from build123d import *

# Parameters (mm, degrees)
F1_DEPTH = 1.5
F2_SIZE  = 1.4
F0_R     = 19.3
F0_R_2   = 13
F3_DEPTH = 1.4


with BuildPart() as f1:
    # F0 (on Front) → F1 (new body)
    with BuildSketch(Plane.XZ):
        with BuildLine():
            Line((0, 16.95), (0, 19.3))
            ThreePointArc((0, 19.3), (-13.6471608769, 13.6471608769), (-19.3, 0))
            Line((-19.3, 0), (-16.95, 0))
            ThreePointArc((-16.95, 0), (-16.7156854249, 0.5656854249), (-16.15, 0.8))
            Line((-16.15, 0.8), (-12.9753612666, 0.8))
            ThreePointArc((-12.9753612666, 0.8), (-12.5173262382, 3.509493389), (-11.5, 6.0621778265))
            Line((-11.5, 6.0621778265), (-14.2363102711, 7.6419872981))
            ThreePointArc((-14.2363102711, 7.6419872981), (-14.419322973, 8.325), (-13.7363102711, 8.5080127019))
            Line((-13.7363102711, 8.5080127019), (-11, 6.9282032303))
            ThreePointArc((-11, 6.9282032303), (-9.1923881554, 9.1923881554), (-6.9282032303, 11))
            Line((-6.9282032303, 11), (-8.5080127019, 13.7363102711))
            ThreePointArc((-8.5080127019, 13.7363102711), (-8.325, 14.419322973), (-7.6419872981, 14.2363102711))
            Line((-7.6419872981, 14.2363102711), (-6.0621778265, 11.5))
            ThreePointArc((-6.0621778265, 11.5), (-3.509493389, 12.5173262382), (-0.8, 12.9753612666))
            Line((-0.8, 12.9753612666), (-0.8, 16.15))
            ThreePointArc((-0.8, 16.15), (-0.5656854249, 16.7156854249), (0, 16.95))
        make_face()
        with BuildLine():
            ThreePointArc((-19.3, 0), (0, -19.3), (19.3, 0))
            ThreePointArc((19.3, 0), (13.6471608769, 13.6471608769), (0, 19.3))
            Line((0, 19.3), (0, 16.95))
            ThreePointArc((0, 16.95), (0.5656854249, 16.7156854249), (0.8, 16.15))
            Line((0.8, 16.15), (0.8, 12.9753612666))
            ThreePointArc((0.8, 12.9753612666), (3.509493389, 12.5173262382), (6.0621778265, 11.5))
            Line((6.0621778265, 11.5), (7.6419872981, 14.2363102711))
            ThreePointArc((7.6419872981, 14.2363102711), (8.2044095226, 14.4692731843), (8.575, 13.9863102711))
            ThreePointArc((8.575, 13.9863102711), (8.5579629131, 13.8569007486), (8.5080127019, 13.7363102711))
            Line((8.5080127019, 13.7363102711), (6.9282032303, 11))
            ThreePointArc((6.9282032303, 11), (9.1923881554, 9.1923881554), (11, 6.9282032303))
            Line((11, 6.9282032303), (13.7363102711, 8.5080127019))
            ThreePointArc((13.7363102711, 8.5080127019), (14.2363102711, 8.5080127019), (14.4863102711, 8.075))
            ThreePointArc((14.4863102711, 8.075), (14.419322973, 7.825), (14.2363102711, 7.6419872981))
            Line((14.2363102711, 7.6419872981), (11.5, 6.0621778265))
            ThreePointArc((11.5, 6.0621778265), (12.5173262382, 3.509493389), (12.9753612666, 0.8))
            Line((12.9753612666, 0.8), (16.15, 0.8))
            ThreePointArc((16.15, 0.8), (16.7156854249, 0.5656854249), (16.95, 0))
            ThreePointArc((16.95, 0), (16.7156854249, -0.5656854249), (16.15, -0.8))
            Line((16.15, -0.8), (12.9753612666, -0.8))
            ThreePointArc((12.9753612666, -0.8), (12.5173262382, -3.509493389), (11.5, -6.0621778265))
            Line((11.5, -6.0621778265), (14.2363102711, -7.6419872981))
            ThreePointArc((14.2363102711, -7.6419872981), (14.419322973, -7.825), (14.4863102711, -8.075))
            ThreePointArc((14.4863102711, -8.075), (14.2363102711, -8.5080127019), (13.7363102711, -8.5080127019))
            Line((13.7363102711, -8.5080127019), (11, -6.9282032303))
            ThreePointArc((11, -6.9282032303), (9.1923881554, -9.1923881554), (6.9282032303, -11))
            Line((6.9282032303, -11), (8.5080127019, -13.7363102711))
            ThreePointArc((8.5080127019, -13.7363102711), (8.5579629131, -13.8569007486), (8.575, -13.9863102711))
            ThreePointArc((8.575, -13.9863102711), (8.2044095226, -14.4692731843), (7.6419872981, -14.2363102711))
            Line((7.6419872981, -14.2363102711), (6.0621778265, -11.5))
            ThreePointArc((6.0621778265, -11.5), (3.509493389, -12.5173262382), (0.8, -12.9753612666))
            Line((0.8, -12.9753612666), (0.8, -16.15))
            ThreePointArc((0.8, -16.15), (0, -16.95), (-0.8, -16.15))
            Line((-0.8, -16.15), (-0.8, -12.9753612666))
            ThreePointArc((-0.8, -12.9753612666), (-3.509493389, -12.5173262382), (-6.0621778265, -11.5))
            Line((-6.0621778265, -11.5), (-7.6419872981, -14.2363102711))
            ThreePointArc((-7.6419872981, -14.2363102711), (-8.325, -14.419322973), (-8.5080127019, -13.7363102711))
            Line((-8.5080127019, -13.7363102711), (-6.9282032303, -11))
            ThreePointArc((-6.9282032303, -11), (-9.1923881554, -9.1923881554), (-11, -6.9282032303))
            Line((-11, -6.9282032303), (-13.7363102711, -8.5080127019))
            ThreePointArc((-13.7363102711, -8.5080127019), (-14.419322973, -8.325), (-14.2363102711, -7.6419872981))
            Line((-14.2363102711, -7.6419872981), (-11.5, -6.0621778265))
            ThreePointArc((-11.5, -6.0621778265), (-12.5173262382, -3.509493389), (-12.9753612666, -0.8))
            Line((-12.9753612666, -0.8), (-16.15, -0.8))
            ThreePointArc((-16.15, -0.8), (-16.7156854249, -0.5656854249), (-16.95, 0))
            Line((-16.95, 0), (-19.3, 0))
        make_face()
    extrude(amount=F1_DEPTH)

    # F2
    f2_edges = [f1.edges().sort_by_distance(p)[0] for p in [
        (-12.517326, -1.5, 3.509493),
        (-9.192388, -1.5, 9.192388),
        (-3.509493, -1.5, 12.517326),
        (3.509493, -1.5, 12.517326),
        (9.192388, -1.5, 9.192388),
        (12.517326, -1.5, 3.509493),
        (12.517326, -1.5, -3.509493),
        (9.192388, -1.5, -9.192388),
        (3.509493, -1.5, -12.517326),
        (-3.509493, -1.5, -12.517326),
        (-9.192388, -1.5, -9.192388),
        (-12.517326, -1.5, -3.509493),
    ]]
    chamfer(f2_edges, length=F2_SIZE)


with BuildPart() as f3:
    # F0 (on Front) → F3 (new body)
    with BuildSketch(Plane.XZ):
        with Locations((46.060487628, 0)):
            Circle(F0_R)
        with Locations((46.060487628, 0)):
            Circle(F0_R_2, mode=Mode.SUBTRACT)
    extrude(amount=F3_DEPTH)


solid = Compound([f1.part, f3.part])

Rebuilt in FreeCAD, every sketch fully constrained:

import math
import FreeCAD as App
import Part
import Sketcher

V = App.Vector
Q = App.Units.Quantity


def edges_at(feature, points):
    """Names of the edges that pass closest to the given points."""
    edges = feature.Shape.Edges
    near = lambda p: min(range(len(edges)), key=lambda i: edges[i].distToShape(Part.Vertex(*p))[0])
    return sorted({f"Edge{near(p) + 1}" for p in points})

doc = App.newDocument("Part")
body = doc.addObject("PartDesign::Body", "Body")

sketch1 = body.newObject("Sketcher::SketchObject", "Sketch")
sketch1.AttachmentSupport = (doc.getObject("XZ_Plane"), [""])
sketch1.MapMode = "FlatFace"
sketch1.addGeometry([
    Part.Circle(V(0, 0, 0), V(0, 0, 1), 19.3),
    Part.ArcOfCircle(Part.Circle(V(-16.15, 0, 0), V(0, 0, 1), 0.8), math.radians(90), math.radians(180)),
    Part.LineSegment(V(-16.15, 0.8, 0), V(-12.98, 0.8, 0)),
    Part.ArcOfCircle(Part.Circle(V(0, 0, 0), V(0, 0, 1), 13), math.radians(152), math.radians(176)),
    Part.LineSegment(V(-11.5, 6.06, 0), V(-14.24, 7.64, 0)),
    Part.ArcOfCircle(Part.Circle(V(-13.99, 8.07, 0), V(0, 0, 1), 0.5), math.radians(60), math.radians(240)),
    Part.LineSegment(V(-13.74, 8.51, 0), V(-11, 6.93, 0)),
    Part.ArcOfCircle(Part.Circle(V(0, 0, 0), V(0, 0, 1), 13), math.radians(122), math.radians(148)),
    Part.LineSegment(V(-6.93, 11, 0), V(-8.51, 13.74, 0)),
    Part.ArcOfCircle(Part.Circle(V(-8.07, 13.99, 0), V(0, 0, 1), 0.5), math.radians(30), math.radians(210)),
    Part.LineSegment(V(-7.64, 14.24, 0), V(-6.06, 11.5, 0)),
    Part.ArcOfCircle(Part.Circle(V(0, 0, 0), V(0, 0, 1), 13), math.radians(94), math.radians(118)),
    Part.LineSegment(V(-0.8, 12.98, 0), V(-0.8, 16.15, 0)),
    Part.ArcOfCircle(Part.Circle(V(0, 16.15, 0), V(0, 0, 1), 0.8), math.radians(90), math.radians(180)),
    Part.ArcOfCircle(Part.Circle(V(0, 16.15, 0), V(0, 0, 1), 0.8), math.radians(0), math.radians(90)),
    Part.LineSegment(V(0.8, 16.15, 0), V(0.8, 12.98, 0)),
    Part.ArcOfCircle(Part.Circle(V(0, 0, 0), V(0, 0, 1), 13), math.radians(62), math.radians(86)),
    Part.LineSegment(V(6.06, 11.5, 0), V(7.64, 14.24, 0)),
    Part.ArcOfCircle(Part.Circle(V(8.07, 13.99, 0), V(0, 0, 1), 0.5), math.radians(0), math.radians(150)),
    Part.ArcOfCircle(Part.Circle(V(8.07, 13.99, 0), V(0, 0, 1), 0.5), math.radians(-30), math.radians(0)),
    Part.LineSegment(V(8.51, 13.74, 0), V(6.93, 11, 0)),
    Part.ArcOfCircle(Part.Circle(V(0, 0, 0), V(0, 0, 1), 13), math.radians(32), math.radians(58)),
    Part.LineSegment(V(11, 6.93, 0), V(13.74, 8.51, 0)),
    Part.ArcOfCircle(Part.Circle(V(13.99, 8.07, 0), V(0, 0, 1), 0.5), math.radians(0), math.radians(120)),
    Part.ArcOfCircle(Part.Circle(V(13.99, 8.07, 0), V(0, 0, 1), 0.5), math.radians(-60), math.radians(0)),
    Part.LineSegment(V(14.24, 7.64, 0), V(11.5, 6.06, 0)),
    Part.ArcOfCircle(Part.Circle(V(0, 0, 0), V(0, 0, 1), 13), math.radians(4), math.radians(28)),
    Part.LineSegment(V(12.98, 0.8, 0), V(16.15, 0.8, 0)),
    Part.ArcOfCircle(Part.Circle(V(16.15, 0, 0), V(0, 0, 1), 0.8), math.radians(0), math.radians(90)),
    Part.ArcOfCircle(Part.Circle(V(16.15, 0, 0), V(0, 0, 1), 0.8), math.radians(-90), math.radians(0)),
    Part.LineSegment(V(16.15, -0.8, 0), V(12.98, -0.8, 0)),
    Part.ArcOfCircle(Part.Circle(V(0, 0, 0), V(0, 0, 1), 13), math.radians(-28), math.radians(-4)),
    Part.LineSegment(V(11.5, -6.06, 0), V(14.24, -7.64, 0)),
    Part.ArcOfCircle(Part.Circle(V(13.99, -8.07, 0), V(0, 0, 1), 0.5), math.radians(0), math.radians(60)),
    Part.ArcOfCircle(Part.Circle(V(13.99, -8.07, 0), V(0, 0, 1), 0.5), math.radians(-120), math.radians(0)),
    Part.LineSegment(V(13.74, -8.51, 0), V(11, -6.93, 0)),
    Part.ArcOfCircle(Part.Circle(V(0, 0, 0), V(0, 0, 1), 13), math.radians(-58), math.radians(-32)),
    Part.LineSegment(V(6.93, -11, 0), V(8.51, -13.74, 0)),
    Part.ArcOfCircle(Part.Circle(V(8.07, -13.99, 0), V(0, 0, 1), 0.5), math.radians(0), math.radians(30)),
    Part.ArcOfCircle(Part.Circle(V(8.07, -13.99, 0), V(0, 0, 1), 0.5), math.radians(-150), math.radians(0)),
    Part.LineSegment(V(7.64, -14.24, 0), V(6.06, -11.5, 0)),
    Part.ArcOfCircle(Part.Circle(V(0, 0, 0), V(0, 0, 1), 13), math.radians(-86), math.radians(-62)),
    Part.LineSegment(V(0.8, -12.98, 0), V(0.8, -16.15, 0)),
    Part.ArcOfCircle(Part.Circle(V(0, -16.15, 0), V(0, 0, 1), 0.8), math.radians(180), math.radians(360)),
    Part.LineSegment(V(-0.8, -16.15, 0), V(-0.8, -12.98, 0)),
    Part.ArcOfCircle(Part.Circle(V(0, 0, 0), V(0, 0, 1), 13), math.radians(-118), math.radians(-94)),
    Part.LineSegment(V(-6.06, -11.5, 0), V(-7.64, -14.24, 0)),
    Part.ArcOfCircle(Part.Circle(V(-8.07, -13.99, 0), V(0, 0, 1), 0.5), math.radians(150), math.radians(330)),
    Part.LineSegment(V(-8.51, -13.74, 0), V(-6.93, -11, 0)),
    Part.ArcOfCircle(Part.Circle(V(0, 0, 0), V(0, 0, 1), 13), math.radians(-148), math.radians(-122)),
    Part.LineSegment(V(-11, -6.93, 0), V(-13.74, -8.51, 0)),
    Part.ArcOfCircle(Part.Circle(V(-13.99, -8.07, 0), V(0, 0, 1), 0.5), math.radians(120), math.radians(300)),
    Part.LineSegment(V(-14.24, -7.64, 0), V(-11.5, -6.06, 0)),
    Part.ArcOfCircle(Part.Circle(V(0, 0, 0), V(0, 0, 1), 13), math.radians(-176), math.radians(-152)),
    Part.LineSegment(V(-12.98, -0.8, 0), V(-16.15, -0.8, 0)),
    Part.ArcOfCircle(Part.Circle(V(-16.15, 0, 0), V(0, 0, 1), 0.8), math.radians(180), math.radians(270)),
], False)
sketch1.addConstraint([
    Sketcher.Constraint("Tangent", 1, 1, 2, 1),
    Sketcher.Constraint("Coincident", 2, 2, 3, 2),
    Sketcher.Constraint("Coincident", 3, 1, 4, 1),
    Sketcher.Constraint("Tangent", 4, 2, 5, 2),
    Sketcher.Constraint("Tangent", 5, 1, 6, 1),
    Sketcher.Constraint("Coincident", 6, 2, 7, 2),
    Sketcher.Constraint("Coincident", 7, 1, 8, 1),
    Sketcher.Constraint("Tangent", 8, 2, 9, 2),
    Sketcher.Constraint("Tangent", 9, 1, 10, 1),
    Sketcher.Constraint("Coincident", 10, 2, 11, 2),
    Sketcher.Constraint("Coincident", 11, 1, 12, 1),
    Sketcher.Constraint("Tangent", 12, 2, 13, 2),
    Sketcher.Constraint("Tangent", 13, 1, 14, 2),
    Sketcher.Constraint("Tangent", 14, 1, 15, 1),
    Sketcher.Constraint("Coincident", 15, 2, 16, 2),
    Sketcher.Constraint("Coincident", 16, 1, 17, 1),
    Sketcher.Constraint("Tangent", 17, 2, 18, 2),
    Sketcher.Constraint("Tangent", 18, 1, 19, 2),
    Sketcher.Constraint("Tangent", 19, 1, 20, 1),
    Sketcher.Constraint("Coincident", 20, 2, 21, 2),
    Sketcher.Constraint("Coincident", 21, 1, 22, 1),
    Sketcher.Constraint("Tangent", 22, 2, 23, 2),
    Sketcher.Constraint("Tangent", 23, 1, 24, 2),
    Sketcher.Constraint("Tangent", 24, 1, 25, 1),
    Sketcher.Constraint("Coincident", 25, 2, 26, 2),
    Sketcher.Constraint("Coincident", 26, 1, 27, 1),
    Sketcher.Constraint("Tangent", 27, 2, 28, 2),
    Sketcher.Constraint("Tangent", 28, 1, 29, 2),
    Sketcher.Constraint("Tangent", 29, 1, 30, 1),
    Sketcher.Constraint("Coincident", 30, 2, 31, 2),
    Sketcher.Constraint("Coincident", 31, 1, 32, 1),
    Sketcher.Constraint("Tangent", 32, 2, 33, 2),
    Sketcher.Constraint("Tangent", 33, 1, 34, 2),
    Sketcher.Constraint("Tangent", 34, 1, 35, 1),
    Sketcher.Constraint("Coincident", 35, 2, 36, 2),
    Sketcher.Constraint("Coincident", 36, 1, 37, 1),
    Sketcher.Constraint("Tangent", 37, 2, 38, 2),
    Sketcher.Constraint("Tangent", 38, 1, 39, 2),
    Sketcher.Constraint("Tangent", 39, 1, 40, 1),
    Sketcher.Constraint("Coincident", 40, 2, 41, 2),
    Sketcher.Constraint("Coincident", 41, 1, 42, 1),
    Sketcher.Constraint("Tangent", 42, 2, 43, 2),
    Sketcher.Constraint("Tangent", 43, 1, 44, 1),
    Sketcher.Constraint("Coincident", 44, 2, 45, 2),
    Sketcher.Constraint("Coincident", 45, 1, 46, 1),
    Sketcher.Constraint("Tangent", 46, 2, 47, 2),
    Sketcher.Constraint("Tangent", 47, 1, 48, 1),
    Sketcher.Constraint("Coincident", 48, 2, 49, 2),
    Sketcher.Constraint("Coincident", 49, 1, 50, 1),
    Sketcher.Constraint("Tangent", 50, 2, 51, 2),
    Sketcher.Constraint("Tangent", 51, 1, 52, 1),
    Sketcher.Constraint("Coincident", 52, 2, 53, 2),
    Sketcher.Constraint("Coincident", 53, 1, 54, 1),
    Sketcher.Constraint("Tangent", 54, 2, 55, 2),
    Sketcher.Constraint("Tangent", 55, 1, 1, 2),
    Sketcher.Constraint("Horizontal", 2),
    Sketcher.Constraint("Vertical", 12),
    Sketcher.Constraint("Vertical", 15),
    Sketcher.Constraint("Horizontal", 27),
    Sketcher.Constraint("Horizontal", 30),
    Sketcher.Constraint("Vertical", 42),
    Sketcher.Constraint("Vertical", 44),
    Sketcher.Constraint("Horizontal", 54),
    Sketcher.Constraint("Coincident", 0, 3, -1, 1),
    Sketcher.Constraint("Coincident", 3, 3, -1, 1),
    Sketcher.Constraint("Coincident", 7, 3, -1, 1),
    Sketcher.Constraint("Coincident", 11, 3, -1, 1),
    Sketcher.Constraint("Coincident", 16, 3, -1, 1),
    Sketcher.Constraint("Coincident", 21, 3, -1, 1),
    Sketcher.Constraint("Coincident", 26, 3, -1, 1),
    Sketcher.Constraint("Coincident", 31, 3, -1, 1),
    Sketcher.Constraint("Coincident", 36, 3, -1, 1),
    Sketcher.Constraint("Coincident", 41, 3, -1, 1),
    Sketcher.Constraint("Coincident", 45, 3, -1, 1),
    Sketcher.Constraint("Coincident", 49, 3, -1, 1),
    Sketcher.Constraint("Coincident", 53, 3, -1, 1),
    Sketcher.Constraint("Equal", 3, 7),
    Sketcher.Constraint("Equal", 5, 9),
    Sketcher.Constraint("Equal", 7, 11),
    Sketcher.Constraint("Equal", 1, 13),
    Sketcher.Constraint("Equal", 13, 14),
    Sketcher.Constraint("Equal", 11, 16),
    Sketcher.Constraint("Equal", 9, 18),
    Sketcher.Constraint("Equal", 18, 19),
    Sketcher.Constraint("Equal", 16, 21),
    Sketcher.Constraint("Equal", 19, 23),
    Sketcher.Constraint("Equal", 23, 24),
    Sketcher.Constraint("Equal", 21, 26),
    Sketcher.Constraint("Equal", 14, 28),
    Sketcher.Constraint("Equal", 28, 29),
    Sketcher.Constraint("Equal", 26, 31),
    Sketcher.Constraint("Equal", 24, 33),
    Sketcher.Constraint("Equal", 33, 34),
    Sketcher.Constraint("Equal", 31, 36),
    Sketcher.Constraint("Equal", 34, 38),
    Sketcher.Constraint("Equal", 38, 39),
    Sketcher.Constraint("Equal", 36, 41),
    Sketcher.Constraint("Equal", 29, 43),
    Sketcher.Constraint("Equal", 41, 45),
    Sketcher.Constraint("Equal", 39, 47),
    Sketcher.Constraint("Equal", 45, 49),
    Sketcher.Constraint("Equal", 47, 51),
    Sketcher.Constraint("Equal", 49, 53),
    Sketcher.Constraint("Equal", 43, 55),
    Sketcher.Constraint("Symmetric", 1, 3, 28, 3, -1, 1),
    Sketcher.Constraint("Symmetric", 5, 3, 33, 3, -1, 1),
    Sketcher.Constraint("Symmetric", 9, 3, 38, 3, -1, 1),
    Sketcher.Constraint("Symmetric", 13, 3, 43, 3, -1, 1),
    Sketcher.Constraint("Symmetric", 18, 3, 47, 3, -1, 1),
    Sketcher.Constraint("Symmetric", 23, 3, 51, 3, -1, 1),
    Sketcher.Constraint("Symmetric", 9, 3, 18, 3, -2),
    Sketcher.Constraint("Symmetric", 5, 3, 23, 3, -2),
    Sketcher.Constraint("PointOnObject", 1, 3, -1),
    Sketcher.Constraint("PointOnObject", 13, 3, -2),
    Sketcher.Constraint("PointOnObject", 13, 1, -2),
    Sketcher.Constraint("PointOnObject", 28, 1, -1),
    Sketcher.Constraint("PointOnObject", 55, 1, -1),
    Sketcher.Constraint("Parallel", 4, 6),
    Sketcher.Constraint("Parallel", 8, 10),
    Sketcher.Constraint("Perpendicular", 6, 17),
    Sketcher.Constraint("Parallel", 17, 20),
    Sketcher.Constraint("Perpendicular", 10, 22),
    Sketcher.Constraint("Parallel", 22, 25),
    Sketcher.Constraint("Perpendicular", 20, 32),
    Sketcher.Constraint("Parallel", 32, 35),
    Sketcher.Constraint("Perpendicular", 25, 37),
    Sketcher.Constraint("Parallel", 37, 40),
    Sketcher.Constraint("Perpendicular", 35, 46),
    Sketcher.Constraint("Parallel", 46, 48),
    Sketcher.Constraint("Perpendicular", 40, 50),
    Sketcher.Constraint("Parallel", 50, 52),
    Sketcher.Constraint("Horizontal", 10, 2, 16, 1),
    Sketcher.Constraint("Horizontal", 19, 3, 18, 1),
    Sketcher.Constraint("Horizontal", 24, 3, 23, 1),
    Sketcher.Constraint("Horizontal", 51, 3, 33, 1),
    Sketcher.Constraint("Horizontal", 47, 3, 38, 1),
    Sketcher.Constraint("Equal", 54, 12),
    Sketcher.Constraint("Equal", 4, 6),
    Sketcher.Constraint("Equal", 6, 8),
    Sketcher.Constraint("Equal", 8, 10),
    Sketcher.Constraint("Radius", 3, Q("13 mm")),
    Sketcher.Constraint("Diameter", 0, Q("38.6 mm")),
    Sketcher.Constraint("Radius", 1, Q("0.8 mm")),
    Sketcher.Constraint("Radius", 5, Q("0.5 mm")),
    Sketcher.Constraint("Angle", 4, Q("150 deg")),
    Sketcher.Constraint("DistanceX", 1, 3, -1, 1, Q("16.15 mm")),
    Sketcher.Constraint("DistanceY", -1, 1, 5, 3, Q("8.075 mm")),
])
pad1 = body.newObject("PartDesign::Pad", "Pad")
pad1.Profile = sketch1
pad1.Length = 1.5
doc.recompute()

chamfer = body.newObject("PartDesign::Chamfer", "Chamfer")
chamfer.Base = (pad1, edges_at(pad1, [
    (-12.517, -1.5, 3.509),
    (-9.192, -1.5, 9.192),
    (-3.509, -1.5, 12.517),
    (3.509, -1.5, 12.517),
    (9.192, -1.5, 9.192),
    (12.517, -1.5, 3.509),
    (12.517, -1.5, -3.509),
    (9.192, -1.5, -9.192),
    (3.509, -1.5, -12.517),
    (-3.509, -1.5, -12.517),
    (-9.192, -1.5, -9.192),
    (-12.517, -1.5, -3.509),
]))
chamfer.Size = 1.4
body2 = doc.addObject("PartDesign::Body", "Body001")

sketch2 = body2.newObject("Sketcher::SketchObject", "Sketch001")
sketch2.AttachmentSupport = (doc.getObject("XZ_Plane001"), [""])
sketch2.MapMode = "FlatFace"
sketch2.addGeometry([
    Part.Circle(V(46, 0, 0), V(0, 0, 1), 19),
    Part.Circle(V(46, 0, 0), V(0, 0, 1), 13),
], False)
sketch2.addConstraint([
    Sketcher.Constraint("Coincident", 1, 3, 0, 3),
    Sketcher.Constraint("PointOnObject", 0, 3, -1),
    Sketcher.Constraint("Diameter", 1, Q("26 mm")),
    Sketcher.Constraint("Diameter", 0, Q("38.6 mm")),
    Sketcher.Constraint("DistanceX", -1, 1, 0, 3, Q("46.060488 mm")),
])
pad2 = body2.newObject("PartDesign::Pad", "Pad001")
pad2.Profile = sketch2
pad2.Length = 1.4

doc.recompute()
